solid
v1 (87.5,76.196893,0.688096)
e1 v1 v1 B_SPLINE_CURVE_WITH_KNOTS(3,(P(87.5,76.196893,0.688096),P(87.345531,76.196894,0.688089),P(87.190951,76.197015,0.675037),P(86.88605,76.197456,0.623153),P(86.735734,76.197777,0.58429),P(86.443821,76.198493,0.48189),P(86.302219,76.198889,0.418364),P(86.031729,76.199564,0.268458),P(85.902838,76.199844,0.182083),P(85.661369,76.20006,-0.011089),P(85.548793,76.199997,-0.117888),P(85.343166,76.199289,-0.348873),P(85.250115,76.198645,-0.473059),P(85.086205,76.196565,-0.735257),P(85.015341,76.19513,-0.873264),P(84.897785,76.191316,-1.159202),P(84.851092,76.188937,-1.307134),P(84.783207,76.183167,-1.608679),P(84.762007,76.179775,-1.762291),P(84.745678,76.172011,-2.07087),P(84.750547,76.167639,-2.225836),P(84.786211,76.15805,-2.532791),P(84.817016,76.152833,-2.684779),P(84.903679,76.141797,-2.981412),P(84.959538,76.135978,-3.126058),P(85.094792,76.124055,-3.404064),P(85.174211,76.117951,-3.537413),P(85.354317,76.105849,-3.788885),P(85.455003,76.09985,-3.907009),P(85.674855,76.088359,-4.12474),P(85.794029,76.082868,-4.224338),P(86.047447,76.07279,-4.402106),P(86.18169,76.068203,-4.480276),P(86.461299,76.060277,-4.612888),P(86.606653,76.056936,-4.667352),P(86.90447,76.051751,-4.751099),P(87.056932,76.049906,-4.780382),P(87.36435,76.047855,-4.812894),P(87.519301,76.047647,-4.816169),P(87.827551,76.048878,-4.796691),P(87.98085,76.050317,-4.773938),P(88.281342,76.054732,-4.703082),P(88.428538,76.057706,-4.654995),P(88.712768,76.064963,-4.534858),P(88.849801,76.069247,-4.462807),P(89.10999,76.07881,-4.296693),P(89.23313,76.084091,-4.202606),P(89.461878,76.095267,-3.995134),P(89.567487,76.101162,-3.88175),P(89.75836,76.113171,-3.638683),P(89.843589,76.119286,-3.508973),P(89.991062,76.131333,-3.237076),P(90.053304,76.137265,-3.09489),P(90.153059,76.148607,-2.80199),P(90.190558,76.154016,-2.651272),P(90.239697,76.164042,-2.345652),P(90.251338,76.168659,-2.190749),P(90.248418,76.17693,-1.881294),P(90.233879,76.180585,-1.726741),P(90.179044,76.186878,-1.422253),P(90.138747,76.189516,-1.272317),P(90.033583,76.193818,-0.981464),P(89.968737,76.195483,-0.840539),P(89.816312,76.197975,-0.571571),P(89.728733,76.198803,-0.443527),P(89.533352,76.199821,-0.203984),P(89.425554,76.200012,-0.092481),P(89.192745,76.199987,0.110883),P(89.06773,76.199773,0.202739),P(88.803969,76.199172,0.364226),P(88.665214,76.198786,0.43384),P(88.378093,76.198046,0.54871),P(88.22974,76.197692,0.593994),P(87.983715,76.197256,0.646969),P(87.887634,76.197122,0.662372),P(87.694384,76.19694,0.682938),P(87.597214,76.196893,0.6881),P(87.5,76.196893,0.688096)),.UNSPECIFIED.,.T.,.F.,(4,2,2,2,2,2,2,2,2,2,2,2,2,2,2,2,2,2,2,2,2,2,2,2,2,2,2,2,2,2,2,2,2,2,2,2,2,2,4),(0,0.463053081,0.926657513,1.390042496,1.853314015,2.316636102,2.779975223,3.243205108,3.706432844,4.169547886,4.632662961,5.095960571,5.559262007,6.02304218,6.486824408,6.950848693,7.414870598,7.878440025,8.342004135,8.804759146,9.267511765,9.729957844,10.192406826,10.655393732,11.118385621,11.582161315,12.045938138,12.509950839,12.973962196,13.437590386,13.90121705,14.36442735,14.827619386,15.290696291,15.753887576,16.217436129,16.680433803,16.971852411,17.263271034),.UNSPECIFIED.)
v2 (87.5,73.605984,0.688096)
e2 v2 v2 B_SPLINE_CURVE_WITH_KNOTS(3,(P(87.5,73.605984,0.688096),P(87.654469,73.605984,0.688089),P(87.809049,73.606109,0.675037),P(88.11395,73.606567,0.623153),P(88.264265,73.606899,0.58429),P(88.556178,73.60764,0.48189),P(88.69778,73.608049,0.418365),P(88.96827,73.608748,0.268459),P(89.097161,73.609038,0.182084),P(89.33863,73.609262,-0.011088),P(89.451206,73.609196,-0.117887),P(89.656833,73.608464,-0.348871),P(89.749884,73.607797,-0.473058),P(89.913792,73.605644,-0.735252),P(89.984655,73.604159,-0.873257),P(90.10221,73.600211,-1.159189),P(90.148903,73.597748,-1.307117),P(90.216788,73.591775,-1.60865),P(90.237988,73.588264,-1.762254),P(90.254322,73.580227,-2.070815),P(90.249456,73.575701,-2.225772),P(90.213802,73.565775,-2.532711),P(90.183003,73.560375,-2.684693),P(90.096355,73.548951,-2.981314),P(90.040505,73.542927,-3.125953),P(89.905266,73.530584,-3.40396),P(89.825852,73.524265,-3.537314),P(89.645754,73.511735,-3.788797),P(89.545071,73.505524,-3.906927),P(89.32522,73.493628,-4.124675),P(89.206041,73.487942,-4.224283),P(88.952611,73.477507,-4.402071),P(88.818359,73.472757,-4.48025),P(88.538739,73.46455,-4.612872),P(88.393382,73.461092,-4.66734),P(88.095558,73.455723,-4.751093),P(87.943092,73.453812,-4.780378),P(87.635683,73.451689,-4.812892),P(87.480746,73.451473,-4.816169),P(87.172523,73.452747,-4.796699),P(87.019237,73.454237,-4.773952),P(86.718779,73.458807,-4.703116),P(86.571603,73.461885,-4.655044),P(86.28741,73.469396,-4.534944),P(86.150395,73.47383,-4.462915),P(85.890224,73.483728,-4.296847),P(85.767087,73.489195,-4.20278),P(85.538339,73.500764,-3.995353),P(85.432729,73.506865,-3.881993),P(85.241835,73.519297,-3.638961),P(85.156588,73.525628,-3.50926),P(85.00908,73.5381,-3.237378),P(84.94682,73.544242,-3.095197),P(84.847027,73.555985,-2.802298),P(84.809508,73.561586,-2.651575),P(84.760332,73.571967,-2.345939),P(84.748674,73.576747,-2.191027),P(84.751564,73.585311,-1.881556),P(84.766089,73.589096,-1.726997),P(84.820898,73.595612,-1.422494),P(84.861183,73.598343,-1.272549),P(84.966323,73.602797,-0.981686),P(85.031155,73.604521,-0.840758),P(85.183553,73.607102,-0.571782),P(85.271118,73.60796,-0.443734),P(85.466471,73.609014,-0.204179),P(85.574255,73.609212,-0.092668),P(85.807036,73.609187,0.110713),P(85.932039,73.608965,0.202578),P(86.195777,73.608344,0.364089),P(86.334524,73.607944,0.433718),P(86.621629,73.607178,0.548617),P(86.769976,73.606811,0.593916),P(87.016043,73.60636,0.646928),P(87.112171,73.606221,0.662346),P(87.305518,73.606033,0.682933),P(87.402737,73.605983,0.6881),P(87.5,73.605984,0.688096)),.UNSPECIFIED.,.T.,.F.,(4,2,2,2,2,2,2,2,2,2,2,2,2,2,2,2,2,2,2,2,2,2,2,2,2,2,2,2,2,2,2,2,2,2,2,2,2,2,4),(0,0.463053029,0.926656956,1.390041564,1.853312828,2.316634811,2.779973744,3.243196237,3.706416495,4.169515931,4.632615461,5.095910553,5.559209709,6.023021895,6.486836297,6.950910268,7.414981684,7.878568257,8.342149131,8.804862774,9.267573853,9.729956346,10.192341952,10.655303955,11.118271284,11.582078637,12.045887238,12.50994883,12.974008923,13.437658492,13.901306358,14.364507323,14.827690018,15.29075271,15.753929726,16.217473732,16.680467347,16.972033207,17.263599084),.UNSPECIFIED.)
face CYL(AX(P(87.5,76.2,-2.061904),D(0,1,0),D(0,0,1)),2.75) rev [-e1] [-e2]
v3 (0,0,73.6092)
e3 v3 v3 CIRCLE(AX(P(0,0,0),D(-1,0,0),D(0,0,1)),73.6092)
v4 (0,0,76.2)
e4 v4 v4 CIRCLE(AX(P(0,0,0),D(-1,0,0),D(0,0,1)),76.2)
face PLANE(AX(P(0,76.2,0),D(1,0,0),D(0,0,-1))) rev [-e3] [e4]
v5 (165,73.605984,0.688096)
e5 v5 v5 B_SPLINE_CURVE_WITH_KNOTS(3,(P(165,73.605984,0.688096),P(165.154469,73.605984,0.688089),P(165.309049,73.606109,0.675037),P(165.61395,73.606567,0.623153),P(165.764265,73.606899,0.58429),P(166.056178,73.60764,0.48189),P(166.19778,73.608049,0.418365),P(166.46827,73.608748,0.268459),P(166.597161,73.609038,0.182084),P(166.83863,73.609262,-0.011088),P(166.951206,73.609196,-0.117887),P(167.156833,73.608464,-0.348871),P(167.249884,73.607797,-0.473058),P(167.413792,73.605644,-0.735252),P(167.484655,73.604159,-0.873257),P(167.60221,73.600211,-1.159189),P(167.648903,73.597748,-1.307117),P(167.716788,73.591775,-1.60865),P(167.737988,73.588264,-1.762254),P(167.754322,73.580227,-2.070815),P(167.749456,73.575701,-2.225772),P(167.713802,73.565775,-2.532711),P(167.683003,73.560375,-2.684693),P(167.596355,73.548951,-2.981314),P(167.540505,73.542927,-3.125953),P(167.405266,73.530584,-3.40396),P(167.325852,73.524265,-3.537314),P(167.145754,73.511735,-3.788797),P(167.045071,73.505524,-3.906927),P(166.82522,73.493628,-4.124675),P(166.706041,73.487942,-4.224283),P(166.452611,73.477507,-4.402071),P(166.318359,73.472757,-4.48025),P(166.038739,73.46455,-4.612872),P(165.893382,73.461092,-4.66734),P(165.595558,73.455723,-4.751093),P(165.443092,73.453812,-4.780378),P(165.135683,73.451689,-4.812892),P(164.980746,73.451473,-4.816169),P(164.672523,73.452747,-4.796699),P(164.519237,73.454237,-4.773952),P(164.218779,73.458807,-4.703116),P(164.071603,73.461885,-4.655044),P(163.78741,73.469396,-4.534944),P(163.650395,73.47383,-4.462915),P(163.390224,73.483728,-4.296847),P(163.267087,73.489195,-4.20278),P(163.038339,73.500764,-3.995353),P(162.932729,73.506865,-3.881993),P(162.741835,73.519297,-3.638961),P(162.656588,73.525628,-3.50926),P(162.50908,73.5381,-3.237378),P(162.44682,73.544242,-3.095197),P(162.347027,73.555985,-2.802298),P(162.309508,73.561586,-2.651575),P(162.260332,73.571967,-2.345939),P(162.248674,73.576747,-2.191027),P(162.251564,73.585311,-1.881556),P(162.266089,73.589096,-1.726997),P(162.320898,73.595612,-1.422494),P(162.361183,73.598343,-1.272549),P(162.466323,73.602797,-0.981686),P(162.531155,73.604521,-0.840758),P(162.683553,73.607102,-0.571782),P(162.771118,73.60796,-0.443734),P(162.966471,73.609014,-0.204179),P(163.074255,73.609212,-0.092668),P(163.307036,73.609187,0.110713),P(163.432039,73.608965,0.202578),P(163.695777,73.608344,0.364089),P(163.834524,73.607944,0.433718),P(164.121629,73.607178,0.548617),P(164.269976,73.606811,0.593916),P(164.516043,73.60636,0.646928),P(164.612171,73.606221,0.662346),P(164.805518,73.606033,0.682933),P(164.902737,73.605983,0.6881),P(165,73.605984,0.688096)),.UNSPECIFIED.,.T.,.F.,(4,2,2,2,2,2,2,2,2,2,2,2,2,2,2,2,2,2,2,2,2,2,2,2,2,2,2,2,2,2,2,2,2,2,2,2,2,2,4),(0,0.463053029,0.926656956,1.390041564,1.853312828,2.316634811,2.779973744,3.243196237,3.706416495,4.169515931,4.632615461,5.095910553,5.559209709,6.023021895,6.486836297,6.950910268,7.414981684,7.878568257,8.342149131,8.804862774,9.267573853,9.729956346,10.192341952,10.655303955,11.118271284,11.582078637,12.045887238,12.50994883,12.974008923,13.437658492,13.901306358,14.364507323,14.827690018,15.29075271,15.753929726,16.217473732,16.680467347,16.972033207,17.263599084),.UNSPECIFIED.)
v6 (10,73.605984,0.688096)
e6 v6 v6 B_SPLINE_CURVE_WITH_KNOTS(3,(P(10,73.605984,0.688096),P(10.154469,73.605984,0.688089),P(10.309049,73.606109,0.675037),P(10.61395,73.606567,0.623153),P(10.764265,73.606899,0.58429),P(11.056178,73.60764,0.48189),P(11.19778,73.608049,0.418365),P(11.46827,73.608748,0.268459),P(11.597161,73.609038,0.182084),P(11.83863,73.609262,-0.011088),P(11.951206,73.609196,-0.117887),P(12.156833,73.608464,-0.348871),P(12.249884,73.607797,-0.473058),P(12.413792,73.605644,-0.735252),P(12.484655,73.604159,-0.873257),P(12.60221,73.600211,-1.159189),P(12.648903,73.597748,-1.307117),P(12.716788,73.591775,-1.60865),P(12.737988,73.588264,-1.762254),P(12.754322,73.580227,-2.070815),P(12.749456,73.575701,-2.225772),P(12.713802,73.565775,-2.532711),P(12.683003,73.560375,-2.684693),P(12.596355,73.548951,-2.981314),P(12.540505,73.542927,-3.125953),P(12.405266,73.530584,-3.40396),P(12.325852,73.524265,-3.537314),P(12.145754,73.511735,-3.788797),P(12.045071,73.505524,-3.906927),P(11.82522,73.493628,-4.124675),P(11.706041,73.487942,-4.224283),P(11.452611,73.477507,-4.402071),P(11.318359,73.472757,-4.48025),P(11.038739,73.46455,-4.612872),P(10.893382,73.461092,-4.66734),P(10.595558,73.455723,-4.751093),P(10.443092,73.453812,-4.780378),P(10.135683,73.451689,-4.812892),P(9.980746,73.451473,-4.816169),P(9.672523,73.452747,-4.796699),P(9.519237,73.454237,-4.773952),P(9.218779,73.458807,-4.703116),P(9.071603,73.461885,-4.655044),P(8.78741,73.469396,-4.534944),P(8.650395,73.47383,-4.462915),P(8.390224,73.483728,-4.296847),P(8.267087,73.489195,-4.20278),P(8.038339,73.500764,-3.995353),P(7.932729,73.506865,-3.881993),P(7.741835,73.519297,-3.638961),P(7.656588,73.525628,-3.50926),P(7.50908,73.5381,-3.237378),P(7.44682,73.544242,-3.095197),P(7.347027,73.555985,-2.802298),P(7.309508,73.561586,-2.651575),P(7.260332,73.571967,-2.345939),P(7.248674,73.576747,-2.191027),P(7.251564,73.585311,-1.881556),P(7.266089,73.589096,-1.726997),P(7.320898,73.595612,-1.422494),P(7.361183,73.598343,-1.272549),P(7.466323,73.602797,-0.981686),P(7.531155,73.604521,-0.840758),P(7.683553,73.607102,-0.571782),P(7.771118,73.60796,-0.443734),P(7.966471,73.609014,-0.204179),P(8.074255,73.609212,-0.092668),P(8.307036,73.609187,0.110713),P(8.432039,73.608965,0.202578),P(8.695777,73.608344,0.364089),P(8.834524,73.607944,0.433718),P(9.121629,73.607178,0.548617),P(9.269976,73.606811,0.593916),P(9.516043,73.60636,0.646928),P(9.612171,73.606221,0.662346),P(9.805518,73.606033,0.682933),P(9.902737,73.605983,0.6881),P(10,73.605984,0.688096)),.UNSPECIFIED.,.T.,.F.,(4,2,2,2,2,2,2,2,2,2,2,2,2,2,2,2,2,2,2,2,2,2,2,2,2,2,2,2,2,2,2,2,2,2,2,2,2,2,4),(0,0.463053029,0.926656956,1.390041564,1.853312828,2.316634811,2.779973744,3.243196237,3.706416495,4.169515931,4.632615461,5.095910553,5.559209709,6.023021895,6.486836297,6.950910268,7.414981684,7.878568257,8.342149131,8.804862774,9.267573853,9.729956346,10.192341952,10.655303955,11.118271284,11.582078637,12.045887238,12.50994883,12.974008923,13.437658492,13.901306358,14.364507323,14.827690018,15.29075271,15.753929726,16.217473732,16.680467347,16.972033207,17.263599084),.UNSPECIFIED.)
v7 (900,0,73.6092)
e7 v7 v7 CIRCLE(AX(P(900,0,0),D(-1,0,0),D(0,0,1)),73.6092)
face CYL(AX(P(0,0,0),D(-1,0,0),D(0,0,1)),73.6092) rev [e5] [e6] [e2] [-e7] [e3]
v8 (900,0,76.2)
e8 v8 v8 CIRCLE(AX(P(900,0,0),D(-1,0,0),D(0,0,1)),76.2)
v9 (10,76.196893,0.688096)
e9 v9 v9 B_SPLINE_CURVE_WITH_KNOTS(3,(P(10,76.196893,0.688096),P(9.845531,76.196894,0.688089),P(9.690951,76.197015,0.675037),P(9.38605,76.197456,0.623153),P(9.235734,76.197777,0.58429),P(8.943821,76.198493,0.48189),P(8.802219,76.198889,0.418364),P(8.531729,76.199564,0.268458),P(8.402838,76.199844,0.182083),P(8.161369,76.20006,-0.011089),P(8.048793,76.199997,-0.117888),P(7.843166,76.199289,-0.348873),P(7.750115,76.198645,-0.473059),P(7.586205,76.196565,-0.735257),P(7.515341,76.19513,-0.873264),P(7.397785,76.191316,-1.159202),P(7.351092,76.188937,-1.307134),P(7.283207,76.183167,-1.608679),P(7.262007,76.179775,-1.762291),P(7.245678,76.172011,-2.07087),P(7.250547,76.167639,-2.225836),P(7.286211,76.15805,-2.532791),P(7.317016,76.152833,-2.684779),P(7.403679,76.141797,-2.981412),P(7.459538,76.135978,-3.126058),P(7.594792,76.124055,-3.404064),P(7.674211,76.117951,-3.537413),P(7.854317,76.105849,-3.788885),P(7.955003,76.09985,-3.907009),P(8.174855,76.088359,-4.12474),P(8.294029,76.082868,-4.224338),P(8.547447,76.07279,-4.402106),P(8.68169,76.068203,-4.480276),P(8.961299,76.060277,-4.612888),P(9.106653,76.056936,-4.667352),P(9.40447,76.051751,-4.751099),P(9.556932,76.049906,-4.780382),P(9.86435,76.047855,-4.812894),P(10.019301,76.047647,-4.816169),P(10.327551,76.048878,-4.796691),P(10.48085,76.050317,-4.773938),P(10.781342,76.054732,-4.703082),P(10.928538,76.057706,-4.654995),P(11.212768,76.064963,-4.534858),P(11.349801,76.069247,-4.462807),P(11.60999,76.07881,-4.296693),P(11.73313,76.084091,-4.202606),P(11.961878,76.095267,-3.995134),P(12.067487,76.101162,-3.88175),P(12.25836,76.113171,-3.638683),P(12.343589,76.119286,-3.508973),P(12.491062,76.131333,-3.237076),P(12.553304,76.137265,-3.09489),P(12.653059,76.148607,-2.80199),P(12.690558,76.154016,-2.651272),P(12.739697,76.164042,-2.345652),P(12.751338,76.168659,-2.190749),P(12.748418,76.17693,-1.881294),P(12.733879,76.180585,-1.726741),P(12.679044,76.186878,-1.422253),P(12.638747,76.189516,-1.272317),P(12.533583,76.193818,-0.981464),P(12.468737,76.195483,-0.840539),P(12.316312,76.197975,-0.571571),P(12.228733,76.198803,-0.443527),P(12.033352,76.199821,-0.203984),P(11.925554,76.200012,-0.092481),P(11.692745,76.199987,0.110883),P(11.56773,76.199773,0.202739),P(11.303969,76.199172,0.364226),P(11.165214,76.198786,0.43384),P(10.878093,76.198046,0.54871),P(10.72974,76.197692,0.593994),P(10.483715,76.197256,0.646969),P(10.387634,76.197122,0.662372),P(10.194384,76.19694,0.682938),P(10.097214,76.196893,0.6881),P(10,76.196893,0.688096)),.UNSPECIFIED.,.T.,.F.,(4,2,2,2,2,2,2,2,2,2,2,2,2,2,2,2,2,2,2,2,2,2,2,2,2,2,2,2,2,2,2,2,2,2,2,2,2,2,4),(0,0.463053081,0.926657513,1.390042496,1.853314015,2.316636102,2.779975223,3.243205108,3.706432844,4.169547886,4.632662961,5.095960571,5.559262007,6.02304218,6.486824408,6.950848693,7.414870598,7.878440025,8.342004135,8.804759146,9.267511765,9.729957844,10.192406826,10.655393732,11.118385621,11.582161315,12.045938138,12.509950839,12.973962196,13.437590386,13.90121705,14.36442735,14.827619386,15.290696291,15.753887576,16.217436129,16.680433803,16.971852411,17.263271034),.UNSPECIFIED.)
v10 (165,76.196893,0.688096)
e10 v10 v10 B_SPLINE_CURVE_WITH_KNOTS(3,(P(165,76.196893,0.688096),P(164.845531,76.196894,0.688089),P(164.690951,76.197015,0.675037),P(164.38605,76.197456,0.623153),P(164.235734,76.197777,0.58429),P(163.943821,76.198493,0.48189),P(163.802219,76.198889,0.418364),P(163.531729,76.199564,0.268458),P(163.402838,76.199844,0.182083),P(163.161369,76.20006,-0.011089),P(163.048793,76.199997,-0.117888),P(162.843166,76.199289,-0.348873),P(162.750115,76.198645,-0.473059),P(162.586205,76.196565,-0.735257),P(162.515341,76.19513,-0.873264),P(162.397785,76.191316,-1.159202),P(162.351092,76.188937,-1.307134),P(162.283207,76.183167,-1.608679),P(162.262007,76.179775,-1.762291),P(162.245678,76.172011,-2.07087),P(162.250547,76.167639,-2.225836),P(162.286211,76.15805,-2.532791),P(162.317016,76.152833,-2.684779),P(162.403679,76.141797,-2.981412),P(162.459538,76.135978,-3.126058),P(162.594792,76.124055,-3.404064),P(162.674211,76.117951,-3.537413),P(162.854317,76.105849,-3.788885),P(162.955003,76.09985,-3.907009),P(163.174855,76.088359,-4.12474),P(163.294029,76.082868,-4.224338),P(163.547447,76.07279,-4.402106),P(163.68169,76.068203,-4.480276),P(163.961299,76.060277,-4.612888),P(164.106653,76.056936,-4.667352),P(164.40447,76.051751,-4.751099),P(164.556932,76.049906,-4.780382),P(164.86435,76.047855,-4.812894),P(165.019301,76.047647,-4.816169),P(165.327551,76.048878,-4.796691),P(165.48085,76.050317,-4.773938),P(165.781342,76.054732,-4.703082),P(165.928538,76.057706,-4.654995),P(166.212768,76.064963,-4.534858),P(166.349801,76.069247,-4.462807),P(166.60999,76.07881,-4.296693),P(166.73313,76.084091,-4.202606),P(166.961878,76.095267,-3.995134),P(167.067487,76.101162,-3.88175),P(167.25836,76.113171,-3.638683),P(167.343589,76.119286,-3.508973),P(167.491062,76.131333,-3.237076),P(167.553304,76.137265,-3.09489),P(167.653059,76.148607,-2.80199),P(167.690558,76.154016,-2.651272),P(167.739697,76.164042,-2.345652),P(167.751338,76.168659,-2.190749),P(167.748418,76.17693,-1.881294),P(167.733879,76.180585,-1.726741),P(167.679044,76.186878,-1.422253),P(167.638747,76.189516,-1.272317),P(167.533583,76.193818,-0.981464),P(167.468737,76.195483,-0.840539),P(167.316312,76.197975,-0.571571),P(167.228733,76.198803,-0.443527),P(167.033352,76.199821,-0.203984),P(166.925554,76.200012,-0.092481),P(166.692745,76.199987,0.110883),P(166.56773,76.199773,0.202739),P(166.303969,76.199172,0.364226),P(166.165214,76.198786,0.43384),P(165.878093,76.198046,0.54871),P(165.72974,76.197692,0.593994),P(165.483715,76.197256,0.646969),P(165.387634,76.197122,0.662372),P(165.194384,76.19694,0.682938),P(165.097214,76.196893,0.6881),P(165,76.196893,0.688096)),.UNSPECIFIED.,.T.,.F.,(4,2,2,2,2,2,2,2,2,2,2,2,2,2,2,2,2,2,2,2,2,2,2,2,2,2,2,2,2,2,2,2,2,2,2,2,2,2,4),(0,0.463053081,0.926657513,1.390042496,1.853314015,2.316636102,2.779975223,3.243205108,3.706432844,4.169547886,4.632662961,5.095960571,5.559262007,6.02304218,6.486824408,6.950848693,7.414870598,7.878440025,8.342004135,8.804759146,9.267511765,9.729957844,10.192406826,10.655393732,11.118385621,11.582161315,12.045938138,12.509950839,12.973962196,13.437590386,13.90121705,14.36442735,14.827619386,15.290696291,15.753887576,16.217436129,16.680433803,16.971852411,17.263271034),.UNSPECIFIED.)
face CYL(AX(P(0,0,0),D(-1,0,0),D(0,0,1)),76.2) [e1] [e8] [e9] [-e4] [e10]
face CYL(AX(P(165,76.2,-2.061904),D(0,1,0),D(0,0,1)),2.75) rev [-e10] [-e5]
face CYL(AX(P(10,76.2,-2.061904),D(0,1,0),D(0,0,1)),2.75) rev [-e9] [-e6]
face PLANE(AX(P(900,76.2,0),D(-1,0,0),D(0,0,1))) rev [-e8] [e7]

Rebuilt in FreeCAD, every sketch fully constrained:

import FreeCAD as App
import Part
import Sketcher


def add_polygon(sketch, points):
    """Adds a closed chain of lines whose ends are joined by coincident constraints."""
    first, n = sketch.GeometryCount, len(points)
    for a, b in zip(points, points[1:] + points[:1]):
        sketch.addGeometry(Part.LineSegment(App.Vector(*a, 0), App.Vector(*b, 0)), False)
    for i in range(n):
        sketch.addConstraint(Sketcher.Constraint("Coincident", first + i, 2, first + (i + 1) % n, 1))

doc = App.newDocument("Part")
body = doc.addObject("PartDesign::Body", "Body")

# Sketch on XY plane
sketch1 = doc.addObject("Sketcher::SketchObject", "Sketch")
body.addObject(sketch1)
sketch1.AttachmentSupport = (doc.XY_Plane, [""])
sketch1.MapMode = "FlatFace"
add_polygon(sketch1, [(0, 76.2), (0, 73.6), (900, 73.6), (900, 76.2)])  # lines 0-3
sketch1.addConstraint([
    Sketcher.Constraint("Vertical", 0),
    Sketcher.Constraint("Horizontal", 1),
    Sketcher.Constraint("Vertical", 2),
    Sketcher.Constraint("Horizontal", 3),
    Sketcher.Constraint("PointOnObject", 0, 2, -2),
    Sketcher.Constraint("DistanceX", 1, 1, 1, 2, 900.0),
    Sketcher.Constraint("DistanceY", -1, 1, 2, 2, 76.2),
    Sketcher.Constraint("DistanceY", 0, 2, 0, 1, 2.5908),
])
revolution = doc.addObject("PartDesign::Revolution", "Revolution")
body.addObject(revolution)
revolution.Profile = sketch1
revolution.ReferenceAxis = (sketch1, ["H_Axis"])
revolution.Angle = 360

# Sketch on XZ plane
sketch2 = doc.addObject("Sketcher::SketchObject", "Sketch001")
body.addObject(sketch2)
sketch2.AttachmentSupport = (doc.XZ_Plane, [""])
sketch2.MapMode = "FlatFace"
sketch2.AttachmentOffset = App.Placement(App.Vector(0, 0, -76.2), App.Rotation())
sketch2.addGeometry([
    Part.Circle(App.Vector(165, -2.1, 0), App.Vector(0, 0, 1), 2.8),
    Part.Circle(App.Vector(87.5, -2.1, 0), App.Vector(0, 0, 1), 2.8),
    Part.Circle(App.Vector(10, -2.1, 0), App.Vector(0, 0, 1), 2.8),
], False)
sketch2.addConstraint([
    Sketcher.Constraint("Equal", 0, 1),
    Sketcher.Constraint("Equal", 1, 2),
    Sketcher.Constraint("Horizontal", 0, 3, 1, 3),
    Sketcher.Constraint("Horizontal", 1, 3, 2, 3),
    Sketcher.Constraint("Diameter", 0, 5.5),
    Sketcher.Constraint("DistanceX", -1, 1, 0, 3, 165.0),
    Sketcher.Constraint("DistanceX", -1, 1, 2, 3, 10.0),
    Sketcher.Constraint("DistanceX", -1, 1, 1, 3, 87.5),
    Sketcher.Constraint("DistanceY", 0, 3, -1, 1, 2.061904),
])
doc.recompute()
hole = doc.addObject("PartDesign::Hole", "Hole")
body.addObject(hole)
hole.Profile = sketch2
hole.ThreadType = "None"
hole.Diameter = 5.5
hole.DepthType = "Dimension"
hole.Depth = 10
hole.DrillPoint = "Angled"
hole.DrillPointAngle = 118
hole.Reversed = True

doc.recompute()
